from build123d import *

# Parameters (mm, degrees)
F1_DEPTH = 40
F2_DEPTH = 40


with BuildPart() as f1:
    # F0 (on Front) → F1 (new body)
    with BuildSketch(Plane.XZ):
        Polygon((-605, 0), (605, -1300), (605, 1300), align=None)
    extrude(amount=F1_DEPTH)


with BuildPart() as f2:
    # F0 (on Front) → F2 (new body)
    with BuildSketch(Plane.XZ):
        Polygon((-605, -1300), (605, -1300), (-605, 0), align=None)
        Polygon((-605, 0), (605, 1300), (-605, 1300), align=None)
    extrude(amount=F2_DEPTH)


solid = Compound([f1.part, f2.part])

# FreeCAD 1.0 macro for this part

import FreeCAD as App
import Part
import Sketcher
Q = App.Units.Quantity

doc = App.newDocument("Part")
body = doc.addObject("PartDesign::Body", "Body")

sketch1 = doc.addObject("Sketcher::SketchObject", "Sketch")
body.addObject(sketch1)
sketch1.AttachmentSupport = (doc.XZ_Plane, [""])
sketch1.MapMode = "FlatFace"
sketch1.addGeometry([
    Part.LineSegment(App.Vector(-605, 0, 0), App.Vector(605, -1300, 0)),
    Part.LineSegment(App.Vector(605, -1300, 0), App.Vector(605, 1300, 0)),
    Part.LineSegment(App.Vector(605, 1300, 0), App.Vector(-605, 0, 0)),
], False)
sketch1.addConstraint([
    Sketcher.Constraint("Coincident", 0, 2, 1, 1),
    Sketcher.Constraint("Coincident", 1, 2, 2, 1),
    Sketcher.Constraint("Coincident", 2, 2, 0, 1),
    Sketcher.Constraint("Vertical", 1),
    Sketcher.Constraint("PointOnObject", 2, 2, -1),
    Sketcher.Constraint("Equal", 0, 2),
    Sketcher.Constraint("DistanceY", 1, 1, 1, 2, Q("2600 mm")),
    Sketcher.Constraint("DistanceX", -1, 1, 0, 2, Q("605 mm")),
    Sketcher.Constraint("DistanceX", 2, 2, -1, 1, Q("605 mm")),
])
pad1 = doc.addObject("PartDesign::Pad", "Pad")
body.addObject(pad1)
pad1.Profile = sketch1
pad1.Length = 40
body2 = doc.addObject("PartDesign::Body", "Body001")
body2.AllowCompound = True

sketch2 = doc.addObject("Sketcher::SketchObject", "Sketch001")
body2.addObject(sketch2)
sketch2.AttachmentSupport = (doc.getObject("XZ_Plane001"), [""])
sketch2.MapMode = "FlatFace"
sketch2.addGeometry([
    Part.LineSegment(App.Vector(-605, -1300, 0), App.Vector(605, -1300, 0)),
    Part.LineSegment(App.Vector(605, -1300, 0), App.Vector(-605, 0, 0)),
    Part.LineSegment(App.Vector(-605, 0, 0), App.Vector(-605, -1300, 0)),
    Part.LineSegment(App.Vector(-605, 0, 0), App.Vector(605, 1300, 0)),
    Part.LineSegment(App.Vector(605, 1300, 0), App.Vector(-605, 1300, 0)),
    Part.LineSegment(App.Vector(-605, 1300, 0), App.Vector(-605, 0, 0)),
], False)
sketch2.addConstraint([
    Sketcher.Constraint("Coincident", 0, 2, 1, 1),
    Sketcher.Constraint("Coincident", 1, 2, 2, 1),
    Sketcher.Constraint("Coincident", 2, 2, 0, 1),
    Sketcher.Constraint("Coincident", 3, 2, 4, 1),
    Sketcher.Constraint("Coincident", 4, 2, 5, 1),
    Sketcher.Constraint("Coincident", 5, 2, 3, 1),
    Sketcher.Constraint("Horizontal", 0),
    Sketcher.Constraint("Vertical", 2),
    Sketcher.Constraint("Horizontal", 4),
    Sketcher.Constraint("Vertical", 5),
    Sketcher.Constraint("Coincident", 5, 2, 1, 2),
    Sketcher.Constraint("Symmetric", 2, 2, 3, 2, -1, 1),
    Sketcher.Constraint("PointOnObject", 1, 2, -1),
    Sketcher.Constraint("Vertical", 0, 2, 3, 2),
    Sketcher.Constraint("DistanceX", 0, 1, 0, 2, Q("1210 mm")),
    Sketcher.Constraint("DistanceY", 2, 2, 2, 1, Q("1300 mm")),
])
pad2 = doc.addObject("PartDesign::Pad", "Pad001")
body2.addObject(pad2)
pad2.Profile = sketch2
pad2.Length = 40

doc.recompute()
